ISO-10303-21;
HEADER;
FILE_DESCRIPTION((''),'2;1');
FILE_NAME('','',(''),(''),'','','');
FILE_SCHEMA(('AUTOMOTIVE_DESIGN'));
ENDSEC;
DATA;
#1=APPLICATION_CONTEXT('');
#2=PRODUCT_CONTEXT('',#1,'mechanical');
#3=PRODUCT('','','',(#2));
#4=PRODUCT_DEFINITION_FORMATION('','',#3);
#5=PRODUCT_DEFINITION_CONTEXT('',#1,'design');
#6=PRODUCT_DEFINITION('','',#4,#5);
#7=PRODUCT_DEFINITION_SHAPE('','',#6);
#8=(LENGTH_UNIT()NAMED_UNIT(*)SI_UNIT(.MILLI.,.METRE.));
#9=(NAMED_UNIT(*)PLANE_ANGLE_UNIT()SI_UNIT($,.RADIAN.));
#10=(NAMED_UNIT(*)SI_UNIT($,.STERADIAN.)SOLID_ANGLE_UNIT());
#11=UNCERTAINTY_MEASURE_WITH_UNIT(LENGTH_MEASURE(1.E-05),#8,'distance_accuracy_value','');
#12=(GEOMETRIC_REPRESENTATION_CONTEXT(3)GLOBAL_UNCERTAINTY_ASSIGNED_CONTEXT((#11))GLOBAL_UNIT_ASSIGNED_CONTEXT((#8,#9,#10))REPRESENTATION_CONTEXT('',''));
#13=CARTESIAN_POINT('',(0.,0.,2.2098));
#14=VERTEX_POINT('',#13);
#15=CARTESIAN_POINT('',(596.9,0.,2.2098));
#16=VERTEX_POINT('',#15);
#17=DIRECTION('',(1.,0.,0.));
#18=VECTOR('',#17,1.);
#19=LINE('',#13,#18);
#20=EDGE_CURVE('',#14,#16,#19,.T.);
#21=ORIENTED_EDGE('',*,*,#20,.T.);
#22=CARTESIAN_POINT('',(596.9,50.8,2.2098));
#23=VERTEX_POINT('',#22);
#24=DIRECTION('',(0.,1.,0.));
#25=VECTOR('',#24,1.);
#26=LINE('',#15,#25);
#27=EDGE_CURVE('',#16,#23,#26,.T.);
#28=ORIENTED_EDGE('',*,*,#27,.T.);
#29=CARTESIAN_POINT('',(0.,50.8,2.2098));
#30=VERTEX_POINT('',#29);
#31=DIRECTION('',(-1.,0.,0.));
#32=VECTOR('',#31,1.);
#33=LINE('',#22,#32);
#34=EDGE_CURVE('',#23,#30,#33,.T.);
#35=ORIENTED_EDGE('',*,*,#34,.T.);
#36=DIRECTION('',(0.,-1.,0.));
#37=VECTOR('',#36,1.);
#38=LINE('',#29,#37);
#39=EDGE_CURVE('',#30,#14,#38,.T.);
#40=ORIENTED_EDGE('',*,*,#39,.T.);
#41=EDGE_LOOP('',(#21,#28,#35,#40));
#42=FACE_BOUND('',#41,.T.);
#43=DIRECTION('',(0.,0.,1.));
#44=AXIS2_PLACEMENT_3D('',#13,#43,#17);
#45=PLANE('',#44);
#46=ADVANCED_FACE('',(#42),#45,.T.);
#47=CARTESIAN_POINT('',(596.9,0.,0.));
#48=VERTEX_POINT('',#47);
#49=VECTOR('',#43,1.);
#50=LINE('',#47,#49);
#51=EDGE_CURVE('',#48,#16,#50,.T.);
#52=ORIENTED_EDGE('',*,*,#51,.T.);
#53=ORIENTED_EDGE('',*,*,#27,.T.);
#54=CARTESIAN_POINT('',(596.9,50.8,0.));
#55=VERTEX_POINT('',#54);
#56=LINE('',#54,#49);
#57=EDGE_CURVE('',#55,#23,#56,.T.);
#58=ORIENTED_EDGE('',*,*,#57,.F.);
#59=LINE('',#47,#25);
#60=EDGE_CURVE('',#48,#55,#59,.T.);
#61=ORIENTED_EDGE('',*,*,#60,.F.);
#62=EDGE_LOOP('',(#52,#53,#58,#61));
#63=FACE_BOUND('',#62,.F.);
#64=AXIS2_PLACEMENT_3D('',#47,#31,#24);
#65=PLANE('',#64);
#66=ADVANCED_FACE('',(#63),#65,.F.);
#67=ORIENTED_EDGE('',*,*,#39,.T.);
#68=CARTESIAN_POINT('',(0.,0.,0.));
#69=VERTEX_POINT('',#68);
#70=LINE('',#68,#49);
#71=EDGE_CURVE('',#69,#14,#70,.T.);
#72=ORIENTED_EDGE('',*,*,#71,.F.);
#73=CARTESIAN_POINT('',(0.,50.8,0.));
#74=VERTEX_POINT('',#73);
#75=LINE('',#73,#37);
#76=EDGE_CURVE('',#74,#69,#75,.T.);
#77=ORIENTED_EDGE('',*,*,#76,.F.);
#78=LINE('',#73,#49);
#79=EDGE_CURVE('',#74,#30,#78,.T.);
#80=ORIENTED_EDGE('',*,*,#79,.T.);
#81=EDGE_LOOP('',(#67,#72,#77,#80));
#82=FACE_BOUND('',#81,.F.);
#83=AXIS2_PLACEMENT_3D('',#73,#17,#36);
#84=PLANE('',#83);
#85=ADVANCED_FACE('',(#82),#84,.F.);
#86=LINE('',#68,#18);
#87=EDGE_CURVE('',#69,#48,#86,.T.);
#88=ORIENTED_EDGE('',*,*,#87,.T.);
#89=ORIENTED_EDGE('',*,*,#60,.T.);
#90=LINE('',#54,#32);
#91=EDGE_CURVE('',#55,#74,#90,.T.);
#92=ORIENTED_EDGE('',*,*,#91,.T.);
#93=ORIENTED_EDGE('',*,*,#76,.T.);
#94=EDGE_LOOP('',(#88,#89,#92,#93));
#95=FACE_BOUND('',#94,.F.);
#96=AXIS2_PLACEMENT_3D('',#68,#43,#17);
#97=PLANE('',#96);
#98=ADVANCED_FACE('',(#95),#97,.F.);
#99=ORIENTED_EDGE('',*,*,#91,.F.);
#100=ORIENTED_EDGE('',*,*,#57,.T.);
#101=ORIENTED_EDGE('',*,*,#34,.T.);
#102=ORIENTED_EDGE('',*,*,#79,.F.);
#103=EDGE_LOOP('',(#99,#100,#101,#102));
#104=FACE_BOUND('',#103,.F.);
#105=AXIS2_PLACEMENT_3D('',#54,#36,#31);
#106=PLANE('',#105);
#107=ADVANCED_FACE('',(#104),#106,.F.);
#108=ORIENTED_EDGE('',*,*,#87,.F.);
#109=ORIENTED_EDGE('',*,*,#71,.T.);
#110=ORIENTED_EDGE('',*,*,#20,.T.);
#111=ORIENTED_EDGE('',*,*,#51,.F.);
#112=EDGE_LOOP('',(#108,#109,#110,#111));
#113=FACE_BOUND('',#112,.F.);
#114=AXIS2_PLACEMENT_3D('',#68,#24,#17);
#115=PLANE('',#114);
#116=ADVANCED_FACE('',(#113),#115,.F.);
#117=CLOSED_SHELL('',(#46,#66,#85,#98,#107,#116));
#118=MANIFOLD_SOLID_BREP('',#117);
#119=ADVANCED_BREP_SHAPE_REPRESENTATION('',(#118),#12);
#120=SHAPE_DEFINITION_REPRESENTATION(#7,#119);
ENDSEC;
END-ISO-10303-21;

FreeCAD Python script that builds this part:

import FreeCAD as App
import Part
import Sketcher
Q = App.Units.Quantity

doc = App.newDocument("Part")
params = doc.addObject("Spreadsheet::Sheet", "Params")
for row, (alias, value) in enumerate([
    ("sketch1_height", "2 in"),
    ("sketch1_width", "23.5 in"),
    ("pad1_length", "0.087 in"),
], start=1):
    params.set(f"A{row}", alias)
    params.set(f"B{row}", "=" + value)
    params.setAlias(f"B{row}", alias)

body = doc.addObject("PartDesign::Body", "Body")

# Sketch on XY plane
sketch1 = body.newObject("Sketcher::SketchObject", "Sketch")
sketch1.AttachmentSupport = (doc.getObject("XY_Plane"), [""])
sketch1.MapMode = "FlatFace"
sketch1.addGeometry([
    Part.LineSegment(App.Vector(0, 51, 0), App.Vector(0, 0, 0)),
    Part.LineSegment(App.Vector(0, 0, 0), App.Vector(597, 0, 0)),
    Part.LineSegment(App.Vector(597, 0, 0), App.Vector(597, 51, 0)),
    Part.LineSegment(App.Vector(597, 51, 0), App.Vector(0, 51, 0)),
], False)
sketch1.addConstraint([
    Sketcher.Constraint("Coincident", 0, 2, 1, 1),
    Sketcher.Constraint("Coincident", 1, 2, 2, 1),
    Sketcher.Constraint("Coincident", 2, 2, 3, 1),
    Sketcher.Constraint("Coincident", 3, 2, 0, 1),
    Sketcher.Constraint("Vertical", 0),
    Sketcher.Constraint("Horizontal", 1),
    Sketcher.Constraint("Vertical", 2),
    Sketcher.Constraint("Horizontal", 3),
    Sketcher.Constraint("Coincident", 0, 2, -1, 1),
    Sketcher.Constraint("DistanceY", 0, 2, 0, 1, Q("2 in")),
    Sketcher.Constraint("DistanceX", 1, 1, 1, 2, Q("23.5 in")),
])
sketch1.setExpression("Constraints[9]", "Params.sketch1_height")
sketch1.setExpression("Constraints[10]", "Params.sketch1_width")
pad1 = body.newObject("PartDesign::Pad", "Pad")
pad1.Profile = sketch1
pad1.setExpression("Length", "Params.pad1_length")

doc.recompute()
